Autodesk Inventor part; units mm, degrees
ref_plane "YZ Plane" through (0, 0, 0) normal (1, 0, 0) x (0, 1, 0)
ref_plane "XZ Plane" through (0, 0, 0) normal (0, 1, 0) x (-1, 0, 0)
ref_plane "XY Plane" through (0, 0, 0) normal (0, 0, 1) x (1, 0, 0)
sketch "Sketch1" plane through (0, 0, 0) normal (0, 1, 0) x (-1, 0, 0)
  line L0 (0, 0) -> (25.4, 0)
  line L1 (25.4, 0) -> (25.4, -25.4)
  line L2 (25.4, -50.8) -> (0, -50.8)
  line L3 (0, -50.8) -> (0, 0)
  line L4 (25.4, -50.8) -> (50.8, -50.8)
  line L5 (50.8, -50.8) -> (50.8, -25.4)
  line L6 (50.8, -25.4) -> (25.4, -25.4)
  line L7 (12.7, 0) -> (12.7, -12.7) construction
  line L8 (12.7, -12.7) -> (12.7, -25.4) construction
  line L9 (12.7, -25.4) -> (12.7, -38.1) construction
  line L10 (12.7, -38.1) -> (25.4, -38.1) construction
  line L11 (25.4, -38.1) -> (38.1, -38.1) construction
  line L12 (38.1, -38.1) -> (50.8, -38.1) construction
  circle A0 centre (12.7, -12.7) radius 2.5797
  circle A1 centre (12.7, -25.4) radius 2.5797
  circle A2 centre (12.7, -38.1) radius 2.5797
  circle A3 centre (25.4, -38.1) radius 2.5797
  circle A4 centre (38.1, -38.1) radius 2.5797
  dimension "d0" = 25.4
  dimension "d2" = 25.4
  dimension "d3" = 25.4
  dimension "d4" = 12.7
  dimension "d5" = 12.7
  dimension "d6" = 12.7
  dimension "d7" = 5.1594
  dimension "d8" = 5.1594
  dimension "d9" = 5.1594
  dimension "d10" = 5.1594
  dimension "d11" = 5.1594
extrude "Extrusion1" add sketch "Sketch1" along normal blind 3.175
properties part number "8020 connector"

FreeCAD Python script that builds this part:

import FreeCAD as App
import Part
import Sketcher
from FreeCAD import Vector
Q = App.Units.Quantity

doc = App.newDocument("Part")
body = doc.addObject("PartDesign::Body", "Body")

# Sketch on XZ plane
sketch1 = body.newObject("Sketcher::SketchObject", "Sketch")
sketch1.AttachmentSupport = (doc.getObject("XZ_Plane"), [""])
sketch1.MapMode = "FlatFace"
sketch1.addGeometry([
    Part.LineSegment(Vector(-25.4, 0, 0), Vector(0, 0, 0)),  # 0
    Part.LineSegment(Vector(0, 0, 0), Vector(0, -50.8, 0)),  # 1
    Part.LineSegment(Vector(0, -50.8, 0), Vector(-50.8, -50.8, 0)),  # 2
    Part.LineSegment(Vector(-50.8, -50.8, 0), Vector(-50.8, -25.4, 0)),  # 3
    Part.LineSegment(Vector(-50.8, -25.4, 0), Vector(-25.4, -25.4, 0)),  # 4
    Part.LineSegment(Vector(-25.4, -25.4, 0), Vector(-25.4, 0, 0)),  # 5
    Part.Circle(Vector(-12.7, -38.1, 0), Vector(0, 0, 1), 2.6),  # 6
    Part.Circle(Vector(-25.4, -38.1, 0), Vector(0, 0, 1), 2.6),  # 7
    Part.Circle(Vector(-12.7, -25.4, 0), Vector(0, 0, 1), 2.6),  # 8
    Part.Circle(Vector(-38.1, -38.1, 0), Vector(0, 0, 1), 2.6),  # 9
    Part.Circle(Vector(-12.7, -12.7, 0), Vector(0, 0, 1), 2.6),  # 10
], False)
sketch1.addConstraint([
    Sketcher.Constraint("Coincident", 0, 2, 1, 1),
    Sketcher.Constraint("Coincident", 1, 2, 2, 1),
    Sketcher.Constraint("Coincident", 2, 2, 3, 1),
    Sketcher.Constraint("Coincident", 3, 2, 4, 1),
    Sketcher.Constraint("Coincident", 4, 2, 5, 1),
    Sketcher.Constraint("Coincident", 5, 2, 0, 1),
    Sketcher.Constraint("Horizontal", 0),
    Sketcher.Constraint("Vertical", 1),
    Sketcher.Constraint("Horizontal", 2),
    Sketcher.Constraint("Vertical", 3),
    Sketcher.Constraint("Horizontal", 4),
    Sketcher.Constraint("Vertical", 5),
    Sketcher.Constraint("Coincident", 0, 2, -1, 1),
    Sketcher.Constraint("Equal", 6, 7),
    Sketcher.Constraint("Equal", 7, 8),
    Sketcher.Constraint("Equal", 8, 9),
    Sketcher.Constraint("Equal", 9, 10),
    Sketcher.Constraint("Horizontal", 6, 3, 7, 3),
    Sketcher.Constraint("Horizontal", 7, 3, 9, 3),
    Sketcher.Constraint("Horizontal", 8, 3, 3, 2),
    Sketcher.Constraint("Vertical", 6, 3, 8, 3),
    Sketcher.Constraint("Vertical", 8, 3, 10, 3),
    Sketcher.Constraint("Vertical", 7, 3, 4, 2),
    Sketcher.Constraint("Equal", 0, 4),
    Sketcher.Constraint("Equal", 2, 1),
    Sketcher.Constraint("Equal", 4, 3),
    Sketcher.Constraint("DistanceX", 0, 1, 0, 2, Q("1 in")),
    Sketcher.Constraint("Diameter", 6, Q("0.203126 in")),
    Sketcher.Constraint("DistanceX", 9, 3, 6, 3, Q("1 in")),
    Sketcher.Constraint("DistanceY", 6, 3, 10, 3, Q("1 in")),
    Sketcher.Constraint("DistanceX", 6, 3, -1, 1, Q("0.5 in")),
    Sketcher.Constraint("DistanceY", 10, 3, -1, 1, Q("0.5 in")),
])
pad1 = body.newObject("PartDesign::Pad", "Pad")
pad1.Profile = sketch1
pad1.Length = Q("0.125 in")
pad1.Reversed = True

doc.recompute()
